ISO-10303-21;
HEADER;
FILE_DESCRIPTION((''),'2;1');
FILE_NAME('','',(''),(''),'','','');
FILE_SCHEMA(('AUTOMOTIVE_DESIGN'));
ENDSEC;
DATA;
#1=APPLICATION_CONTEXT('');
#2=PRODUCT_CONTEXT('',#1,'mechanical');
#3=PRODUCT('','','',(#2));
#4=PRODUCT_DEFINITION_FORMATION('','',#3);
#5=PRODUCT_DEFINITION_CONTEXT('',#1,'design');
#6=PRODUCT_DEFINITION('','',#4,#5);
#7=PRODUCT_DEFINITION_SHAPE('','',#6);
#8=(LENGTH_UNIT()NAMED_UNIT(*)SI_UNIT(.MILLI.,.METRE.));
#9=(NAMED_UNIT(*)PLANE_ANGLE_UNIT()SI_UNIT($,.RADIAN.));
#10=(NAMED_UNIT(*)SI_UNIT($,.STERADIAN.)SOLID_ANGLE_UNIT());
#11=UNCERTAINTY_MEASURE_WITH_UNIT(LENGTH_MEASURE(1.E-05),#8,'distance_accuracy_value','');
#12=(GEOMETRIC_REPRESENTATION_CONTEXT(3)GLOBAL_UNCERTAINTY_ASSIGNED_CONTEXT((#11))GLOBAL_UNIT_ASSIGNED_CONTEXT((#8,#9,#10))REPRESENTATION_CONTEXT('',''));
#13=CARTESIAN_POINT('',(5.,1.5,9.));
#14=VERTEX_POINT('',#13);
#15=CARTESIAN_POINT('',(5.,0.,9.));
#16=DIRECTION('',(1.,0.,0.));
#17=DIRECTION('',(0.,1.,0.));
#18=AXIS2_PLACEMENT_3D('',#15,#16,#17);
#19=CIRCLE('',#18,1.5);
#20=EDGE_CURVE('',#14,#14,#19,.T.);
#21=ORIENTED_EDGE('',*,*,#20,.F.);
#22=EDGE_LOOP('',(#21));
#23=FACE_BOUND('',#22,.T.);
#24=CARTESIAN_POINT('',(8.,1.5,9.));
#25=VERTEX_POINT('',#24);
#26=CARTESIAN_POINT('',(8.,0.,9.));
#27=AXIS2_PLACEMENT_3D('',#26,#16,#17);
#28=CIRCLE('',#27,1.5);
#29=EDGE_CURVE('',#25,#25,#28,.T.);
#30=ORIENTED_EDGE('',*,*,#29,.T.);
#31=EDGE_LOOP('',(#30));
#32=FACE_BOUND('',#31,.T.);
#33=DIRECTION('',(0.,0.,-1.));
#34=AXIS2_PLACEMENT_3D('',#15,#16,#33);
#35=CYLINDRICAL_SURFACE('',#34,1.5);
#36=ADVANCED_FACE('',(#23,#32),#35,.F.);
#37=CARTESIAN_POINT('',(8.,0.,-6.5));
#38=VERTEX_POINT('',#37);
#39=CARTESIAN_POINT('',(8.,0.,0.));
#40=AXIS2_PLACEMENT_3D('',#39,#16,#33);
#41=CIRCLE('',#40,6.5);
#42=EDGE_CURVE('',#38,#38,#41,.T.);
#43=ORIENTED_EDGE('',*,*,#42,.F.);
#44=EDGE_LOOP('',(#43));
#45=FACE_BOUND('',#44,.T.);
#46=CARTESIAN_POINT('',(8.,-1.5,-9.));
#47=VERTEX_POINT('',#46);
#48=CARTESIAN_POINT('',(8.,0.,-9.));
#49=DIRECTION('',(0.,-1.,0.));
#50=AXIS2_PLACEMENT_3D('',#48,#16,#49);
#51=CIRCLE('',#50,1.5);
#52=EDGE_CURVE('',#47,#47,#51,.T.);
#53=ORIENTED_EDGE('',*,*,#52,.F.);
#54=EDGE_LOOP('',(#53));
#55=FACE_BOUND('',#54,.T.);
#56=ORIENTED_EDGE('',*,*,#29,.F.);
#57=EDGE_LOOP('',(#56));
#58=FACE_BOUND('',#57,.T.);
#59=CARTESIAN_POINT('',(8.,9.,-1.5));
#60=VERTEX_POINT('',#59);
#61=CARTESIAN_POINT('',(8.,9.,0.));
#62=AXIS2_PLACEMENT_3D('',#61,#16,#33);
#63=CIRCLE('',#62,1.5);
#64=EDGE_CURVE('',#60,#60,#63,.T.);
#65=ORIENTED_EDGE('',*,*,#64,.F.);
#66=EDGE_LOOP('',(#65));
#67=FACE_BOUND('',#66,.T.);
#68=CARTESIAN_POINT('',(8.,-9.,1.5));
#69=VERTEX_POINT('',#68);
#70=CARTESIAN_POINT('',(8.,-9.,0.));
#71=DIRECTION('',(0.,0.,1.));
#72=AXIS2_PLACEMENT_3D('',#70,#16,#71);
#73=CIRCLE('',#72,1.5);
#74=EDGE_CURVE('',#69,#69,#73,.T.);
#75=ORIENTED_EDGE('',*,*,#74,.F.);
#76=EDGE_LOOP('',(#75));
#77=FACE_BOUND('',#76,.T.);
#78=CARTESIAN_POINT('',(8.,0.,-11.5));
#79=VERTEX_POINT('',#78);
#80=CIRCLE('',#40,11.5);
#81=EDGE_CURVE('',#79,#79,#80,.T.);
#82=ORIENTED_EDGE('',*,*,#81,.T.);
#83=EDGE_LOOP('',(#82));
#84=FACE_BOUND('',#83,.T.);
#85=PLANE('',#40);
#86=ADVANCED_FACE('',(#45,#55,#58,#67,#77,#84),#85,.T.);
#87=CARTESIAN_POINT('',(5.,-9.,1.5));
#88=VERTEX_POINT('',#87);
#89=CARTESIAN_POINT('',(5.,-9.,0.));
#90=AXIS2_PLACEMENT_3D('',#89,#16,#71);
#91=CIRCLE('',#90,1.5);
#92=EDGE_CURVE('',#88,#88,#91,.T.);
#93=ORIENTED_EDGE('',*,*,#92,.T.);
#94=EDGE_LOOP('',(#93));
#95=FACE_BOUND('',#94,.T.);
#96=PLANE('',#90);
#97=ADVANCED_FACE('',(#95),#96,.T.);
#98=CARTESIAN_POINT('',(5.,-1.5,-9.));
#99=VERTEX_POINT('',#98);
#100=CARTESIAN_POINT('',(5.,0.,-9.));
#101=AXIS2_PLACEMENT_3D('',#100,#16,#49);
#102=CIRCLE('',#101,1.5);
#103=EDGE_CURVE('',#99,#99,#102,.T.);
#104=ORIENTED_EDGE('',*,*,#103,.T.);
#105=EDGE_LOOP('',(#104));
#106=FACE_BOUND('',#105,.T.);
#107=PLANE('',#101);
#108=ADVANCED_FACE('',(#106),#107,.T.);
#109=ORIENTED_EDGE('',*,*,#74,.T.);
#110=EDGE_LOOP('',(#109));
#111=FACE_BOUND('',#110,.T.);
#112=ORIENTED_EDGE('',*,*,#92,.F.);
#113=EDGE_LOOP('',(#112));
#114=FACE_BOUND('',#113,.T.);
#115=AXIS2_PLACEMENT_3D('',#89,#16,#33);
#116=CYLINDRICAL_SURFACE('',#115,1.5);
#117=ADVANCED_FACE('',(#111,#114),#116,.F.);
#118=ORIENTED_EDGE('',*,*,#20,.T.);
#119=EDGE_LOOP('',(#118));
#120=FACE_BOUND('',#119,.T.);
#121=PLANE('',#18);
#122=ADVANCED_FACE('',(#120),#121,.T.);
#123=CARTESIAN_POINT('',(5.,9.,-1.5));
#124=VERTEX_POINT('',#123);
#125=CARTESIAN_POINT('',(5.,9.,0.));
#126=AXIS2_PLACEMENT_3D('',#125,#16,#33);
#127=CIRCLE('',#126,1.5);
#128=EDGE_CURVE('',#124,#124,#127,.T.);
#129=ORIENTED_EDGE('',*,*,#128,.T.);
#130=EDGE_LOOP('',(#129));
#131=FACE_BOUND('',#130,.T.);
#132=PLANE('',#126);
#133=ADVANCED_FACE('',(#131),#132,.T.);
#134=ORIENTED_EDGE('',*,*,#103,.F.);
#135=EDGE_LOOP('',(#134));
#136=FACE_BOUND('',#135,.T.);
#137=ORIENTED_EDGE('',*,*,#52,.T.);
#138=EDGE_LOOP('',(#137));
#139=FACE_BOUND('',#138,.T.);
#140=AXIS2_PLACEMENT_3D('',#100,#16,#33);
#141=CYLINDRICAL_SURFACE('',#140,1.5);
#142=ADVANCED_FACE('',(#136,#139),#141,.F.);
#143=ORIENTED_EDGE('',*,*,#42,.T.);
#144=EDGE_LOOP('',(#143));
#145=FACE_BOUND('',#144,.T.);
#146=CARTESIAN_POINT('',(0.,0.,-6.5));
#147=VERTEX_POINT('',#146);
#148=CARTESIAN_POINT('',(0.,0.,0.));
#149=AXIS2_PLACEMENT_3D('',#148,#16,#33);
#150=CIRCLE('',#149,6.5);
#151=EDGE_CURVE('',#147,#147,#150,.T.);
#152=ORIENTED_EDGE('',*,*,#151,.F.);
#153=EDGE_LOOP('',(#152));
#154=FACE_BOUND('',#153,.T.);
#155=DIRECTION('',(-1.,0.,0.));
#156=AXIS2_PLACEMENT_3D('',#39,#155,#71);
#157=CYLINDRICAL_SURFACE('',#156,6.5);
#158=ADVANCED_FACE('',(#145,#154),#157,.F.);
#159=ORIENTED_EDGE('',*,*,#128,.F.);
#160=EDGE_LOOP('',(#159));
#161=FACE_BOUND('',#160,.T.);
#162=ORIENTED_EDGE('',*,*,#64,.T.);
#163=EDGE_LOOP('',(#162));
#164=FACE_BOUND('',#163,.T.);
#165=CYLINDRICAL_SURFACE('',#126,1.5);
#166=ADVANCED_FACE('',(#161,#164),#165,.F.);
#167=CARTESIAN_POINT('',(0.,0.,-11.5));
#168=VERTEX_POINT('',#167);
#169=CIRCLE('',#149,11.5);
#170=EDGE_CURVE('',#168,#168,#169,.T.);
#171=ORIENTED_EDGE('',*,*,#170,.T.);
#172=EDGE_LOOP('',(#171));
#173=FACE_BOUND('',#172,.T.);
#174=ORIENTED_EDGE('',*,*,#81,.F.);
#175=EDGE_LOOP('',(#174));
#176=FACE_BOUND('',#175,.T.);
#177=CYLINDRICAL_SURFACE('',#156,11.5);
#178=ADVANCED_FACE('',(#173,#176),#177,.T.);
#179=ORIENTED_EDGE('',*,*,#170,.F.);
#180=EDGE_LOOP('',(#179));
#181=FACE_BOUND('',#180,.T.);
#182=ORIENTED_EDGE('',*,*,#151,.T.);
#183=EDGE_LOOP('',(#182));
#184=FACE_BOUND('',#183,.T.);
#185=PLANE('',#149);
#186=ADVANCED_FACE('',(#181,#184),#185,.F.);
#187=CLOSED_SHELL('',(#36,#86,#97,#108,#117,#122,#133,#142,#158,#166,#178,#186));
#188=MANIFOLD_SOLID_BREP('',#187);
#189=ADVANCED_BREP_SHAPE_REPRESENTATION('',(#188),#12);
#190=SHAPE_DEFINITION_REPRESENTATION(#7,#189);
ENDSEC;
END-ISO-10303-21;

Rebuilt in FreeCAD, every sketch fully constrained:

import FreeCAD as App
import Part
import Sketcher

V = App.Vector
Q = App.Units.Quantity

doc = App.newDocument("Part")
body = doc.addObject("PartDesign::Body", "Body")

sketch1 = body.newObject("Sketcher::SketchObject", "Sketch")
sketch1.AttachmentSupport = (doc.getObject("YZ_Plane"), [""])
sketch1.MapMode = "FlatFace"
sketch1.addGeometry([
    Part.Circle(V(0, 0, 0), V(0, 0, 1), 12),
    Part.Circle(V(0, 0, 0), V(0, 0, 1), 6),
], False)
sketch1.addConstraint([
    Sketcher.Constraint("Coincident", 0, 3, -1, 1),
    Sketcher.Constraint("Coincident", 1, 3, -1, 1),
    Sketcher.Constraint("Diameter", 0, Q("23 mm")),
    Sketcher.Constraint("Diameter", 1, Q("13 mm")),
])
pad1 = body.newObject("PartDesign::Pad", "Pad")
pad1.Profile = sketch1
pad1.Length = 8

sketch2 = body.newObject("Sketcher::SketchObject", "Sketch001")
sketch2.AttachmentSupport = (doc.getObject("YZ_Plane"), [""])
sketch2.MapMode = "FlatFace"
sketch2.AttachmentOffset = App.Placement(V(0, 0, 8), App.Rotation())
sketch2.addGeometry(Part.Circle(V(9, 0, 0), V(0, 0, 1), 1.5), False)
sketch2.addConstraint([
    Sketcher.Constraint("PointOnObject", 0, 3, -1),
    Sketcher.Constraint("Diameter", 0, Q("3 mm")),
    Sketcher.Constraint("DistanceX", -1, 1, 0, 3, Q("9 mm")),
])
pocket1 = body.newObject("PartDesign::Pocket", "Pocket")
pocket1.Profile = sketch2
pocket1.Length = 3
doc.recompute()

polarpattern = body.newObject("PartDesign::PolarPattern", "PolarPattern")
polarpattern.Originals = [pocket1]
polarpattern.Axis = (doc.getObject("X_Axis"), [""])
polarpattern.Angle = 360
polarpattern.Occurrences = 4
body.Tip = polarpattern

doc.recompute()
